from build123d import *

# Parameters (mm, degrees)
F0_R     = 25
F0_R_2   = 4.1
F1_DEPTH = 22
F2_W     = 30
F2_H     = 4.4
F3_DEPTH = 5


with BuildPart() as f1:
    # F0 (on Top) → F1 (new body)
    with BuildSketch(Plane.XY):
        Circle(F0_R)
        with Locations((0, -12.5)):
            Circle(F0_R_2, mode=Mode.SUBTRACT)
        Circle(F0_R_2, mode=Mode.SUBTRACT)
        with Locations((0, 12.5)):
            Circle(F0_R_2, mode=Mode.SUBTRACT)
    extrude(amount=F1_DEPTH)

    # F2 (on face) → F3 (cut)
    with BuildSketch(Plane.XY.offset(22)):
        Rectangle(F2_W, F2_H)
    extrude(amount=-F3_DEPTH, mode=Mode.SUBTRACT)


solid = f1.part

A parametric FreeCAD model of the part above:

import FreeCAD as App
import Part
import Sketcher

V = App.Vector

doc = App.newDocument("Part")
body = doc.addObject("PartDesign::Body", "Body")

# Sketch on XY plane
sketch1 = doc.addObject("Sketcher::SketchObject", "Sketch")
body.addObject(sketch1)
sketch1.AttachmentSupport = (doc.XY_Plane, [""])
sketch1.MapMode = "FlatFace"
sketch1.addGeometry(Part.Circle(V(0, 0, 0), V(0, 0, 1), 25), False)
sketch1.addGeometry(Part.Circle(V(0, -12.5, 0), V(0, 0, 1), 4.1), False)
sketch1.addGeometry(Part.Circle(V(0, 0, 0), V(0, 0, 1), 4.1), False)
sketch1.addGeometry(Part.Circle(V(0, 12.5, 0), V(0, 0, 1), 4.1), False)
sketch1.addConstraint(Sketcher.Constraint("Coincident", 0, 3, -1, 1))
sketch1.addConstraint(Sketcher.Constraint("Coincident", 2, 3, -1, 1))
sketch1.addConstraint(Sketcher.Constraint("Equal", 1, 2))
sketch1.addConstraint(Sketcher.Constraint("Equal", 2, 3))
sketch1.addConstraint(Sketcher.Constraint("Symmetric", 1, 3, 3, 3, -1, 1))
sketch1.addConstraint(Sketcher.Constraint("PointOnObject", 1, 3, -2))
sketch1.addConstraint(Sketcher.Constraint("Diameter", 0, 50.0))
sketch1.addConstraint(Sketcher.Constraint("Diameter", 1, 8.2))
sketch1.addConstraint(Sketcher.Constraint("DistanceY", 1, 3, 3, 3, 25.0))
pad1 = doc.addObject("PartDesign::Pad", "Pad")
body.addObject(pad1)
pad1.Profile = sketch1
pad1.Length = 22

# Sketch on XY plane
sketch2 = doc.addObject("Sketcher::SketchObject", "Sketch001")
body.addObject(sketch2)
sketch2.AttachmentSupport = (doc.XY_Plane, [""])
sketch2.MapMode = "FlatFace"
sketch2.AttachmentOffset = App.Placement(V(0, 0, 22), App.Rotation())
sketch2.addGeometry(Part.LineSegment(V(-15, 2.2, 0), V(-15, -2.2, 0)), False)
sketch2.addGeometry(Part.LineSegment(V(-15, -2.2, 0), V(15, -2.2, 0)), False)
sketch2.addGeometry(Part.LineSegment(V(15, -2.2, 0), V(15, 2.2, 0)), False)
sketch2.addGeometry(Part.LineSegment(V(15, 2.2, 0), V(-15, 2.2, 0)), False)
sketch2.addConstraint(Sketcher.Constraint("Coincident", 0, 2, 1, 1))
sketch2.addConstraint(Sketcher.Constraint("Coincident", 1, 2, 2, 1))
sketch2.addConstraint(Sketcher.Constraint("Coincident", 2, 2, 3, 1))
sketch2.addConstraint(Sketcher.Constraint("Coincident", 3, 2, 0, 1))
sketch2.addConstraint(Sketcher.Constraint("Vertical", 0))
sketch2.addConstraint(Sketcher.Constraint("Horizontal", 1))
sketch2.addConstraint(Sketcher.Constraint("Vertical", 2))
sketch2.addConstraint(Sketcher.Constraint("Horizontal", 3))
sketch2.addConstraint(Sketcher.Constraint("Symmetric", 0, 2, 2, 2, -1, 1))
sketch2.addConstraint(Sketcher.Constraint("DistanceX", 1, 1, 1, 2, 30.0))
sketch2.addConstraint(Sketcher.Constraint("DistanceY", 0, 2, 0, 1, 4.4))
pocket1 = doc.addObject("PartDesign::Pocket", "Pocket")
body.addObject(pocket1)
pocket1.Profile = sketch2
pocket1.Length = 5

doc.recompute()
